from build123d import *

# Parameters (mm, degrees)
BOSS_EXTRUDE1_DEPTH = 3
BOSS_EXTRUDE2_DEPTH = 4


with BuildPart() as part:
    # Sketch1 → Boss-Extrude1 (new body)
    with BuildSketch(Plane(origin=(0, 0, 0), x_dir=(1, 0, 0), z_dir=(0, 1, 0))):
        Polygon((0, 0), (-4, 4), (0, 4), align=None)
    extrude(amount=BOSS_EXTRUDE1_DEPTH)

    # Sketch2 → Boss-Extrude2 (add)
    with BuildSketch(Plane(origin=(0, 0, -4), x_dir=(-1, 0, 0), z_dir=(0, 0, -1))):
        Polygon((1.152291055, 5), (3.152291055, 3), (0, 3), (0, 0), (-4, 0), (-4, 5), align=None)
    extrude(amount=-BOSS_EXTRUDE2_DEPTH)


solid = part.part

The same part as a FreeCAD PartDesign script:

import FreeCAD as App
import Part
import Sketcher

V = App.Vector
Q = App.Units.Quantity

doc = App.newDocument("Part")
body = doc.addObject("PartDesign::Body", "Body")

sketch1 = doc.addObject("Sketcher::SketchObject", "Sketch")
body.addObject(sketch1)
sketch1.AttachmentSupport = (doc.XZ_Plane, [""])
sketch1.MapMode = "FlatFace"
sketch1.addGeometry(Part.LineSegment(V(-4, -4, 0), V(0, 0, 0)), False)
sketch1.addGeometry(Part.LineSegment(V(0, 0, 0), V(0, -4, 0)), False)
sketch1.addGeometry(Part.LineSegment(V(0, -4, 0), V(-4, -4, 0)), False)
sketch1.addConstraint(Sketcher.Constraint("Coincident", 0, 2, 1, 1))
sketch1.addConstraint(Sketcher.Constraint("Coincident", 1, 2, 2, 1))
sketch1.addConstraint(Sketcher.Constraint("Coincident", 2, 2, 0, 1))
sketch1.addConstraint(Sketcher.Constraint("Vertical", 1))
sketch1.addConstraint(Sketcher.Constraint("Horizontal", 2))
sketch1.addConstraint(Sketcher.Constraint("Coincident", 0, 2, -1, 1))
sketch1.addConstraint(Sketcher.Constraint("Equal", 2, 1))
sketch1.addConstraint(Sketcher.Constraint("DistanceX", 2, 2, 2, 1, Q("4 mm")))
pad1 = doc.addObject("PartDesign::Pad", "Pad")
body.addObject(pad1)
pad1.Profile = sketch1
pad1.Length = 3
pad1.Reversed = True

sketch2 = doc.addObject("Sketcher::SketchObject", "Sketch001")
body.addObject(sketch2)
sketch2.AttachmentSupport = (doc.XY_Plane, [""])
sketch2.MapMode = "FlatFace"
sketch2.AttachmentOffset = App.Placement(V(0, 0, -4), App.Rotation())
sketch2.addGeometry(Part.LineSegment(V(-3.152291, 3, 0), V(-1.152291, 5, 0)), False)
sketch2.addGeometry(Part.LineSegment(V(-1.152291, 5, 0), V(4, 5, 0)), False)
sketch2.addGeometry(Part.LineSegment(V(4, 5, 0), V(4, 0, 0)), False)
sketch2.addGeometry(Part.LineSegment(V(4, 0, 0), V(0, 0, 0)), False)
sketch2.addGeometry(Part.LineSegment(V(0, 0, 0), V(0, 3, 0)), False)
sketch2.addGeometry(Part.LineSegment(V(0, 3, 0), V(-3.152291, 3, 0)), False)
sketch2.addConstraint(Sketcher.Constraint("Coincident", 0, 2, 1, 1))
sketch2.addConstraint(Sketcher.Constraint("Coincident", 1, 2, 2, 1))
sketch2.addConstraint(Sketcher.Constraint("Coincident", 2, 2, 3, 1))
sketch2.addConstraint(Sketcher.Constraint("Coincident", 3, 2, 4, 1))
sketch2.addConstraint(Sketcher.Constraint("Coincident", 4, 2, 5, 1))
sketch2.addConstraint(Sketcher.Constraint("Coincident", 5, 2, 0, 1))
sketch2.addConstraint(Sketcher.Constraint("Horizontal", 1))
sketch2.addConstraint(Sketcher.Constraint("Vertical", 2))
sketch2.addConstraint(Sketcher.Constraint("Horizontal", 3))
sketch2.addConstraint(Sketcher.Constraint("Vertical", 4))
sketch2.addConstraint(Sketcher.Constraint("Horizontal", 5))
sketch2.addConstraint(Sketcher.Constraint("Coincident", 3, 2, -1, 1))
sketch2.addConstraint(Sketcher.Constraint("DistanceX", 3, 2, 3, 1, Q("4 mm")))
sketch2.addConstraint(Sketcher.Constraint("DistanceY", 2, 2, 2, 1, Q("5 mm")))
sketch2.addConstraint(Sketcher.Constraint("DistanceY", 4, 1, 4, 2, Q("3 mm")))
sketch2.addConstraint(Sketcher.Constraint("Angle", 0, Q("45 deg")))
sketch2.addConstraint(Sketcher.Constraint("DistanceX", 1, 1, 1, 2, Q("5.152291 mm")))
pad2 = doc.addObject("PartDesign::Pad", "Pad001")
body.addObject(pad2)
pad2.Profile = sketch2
pad2.Length = 4

doc.recompute()
